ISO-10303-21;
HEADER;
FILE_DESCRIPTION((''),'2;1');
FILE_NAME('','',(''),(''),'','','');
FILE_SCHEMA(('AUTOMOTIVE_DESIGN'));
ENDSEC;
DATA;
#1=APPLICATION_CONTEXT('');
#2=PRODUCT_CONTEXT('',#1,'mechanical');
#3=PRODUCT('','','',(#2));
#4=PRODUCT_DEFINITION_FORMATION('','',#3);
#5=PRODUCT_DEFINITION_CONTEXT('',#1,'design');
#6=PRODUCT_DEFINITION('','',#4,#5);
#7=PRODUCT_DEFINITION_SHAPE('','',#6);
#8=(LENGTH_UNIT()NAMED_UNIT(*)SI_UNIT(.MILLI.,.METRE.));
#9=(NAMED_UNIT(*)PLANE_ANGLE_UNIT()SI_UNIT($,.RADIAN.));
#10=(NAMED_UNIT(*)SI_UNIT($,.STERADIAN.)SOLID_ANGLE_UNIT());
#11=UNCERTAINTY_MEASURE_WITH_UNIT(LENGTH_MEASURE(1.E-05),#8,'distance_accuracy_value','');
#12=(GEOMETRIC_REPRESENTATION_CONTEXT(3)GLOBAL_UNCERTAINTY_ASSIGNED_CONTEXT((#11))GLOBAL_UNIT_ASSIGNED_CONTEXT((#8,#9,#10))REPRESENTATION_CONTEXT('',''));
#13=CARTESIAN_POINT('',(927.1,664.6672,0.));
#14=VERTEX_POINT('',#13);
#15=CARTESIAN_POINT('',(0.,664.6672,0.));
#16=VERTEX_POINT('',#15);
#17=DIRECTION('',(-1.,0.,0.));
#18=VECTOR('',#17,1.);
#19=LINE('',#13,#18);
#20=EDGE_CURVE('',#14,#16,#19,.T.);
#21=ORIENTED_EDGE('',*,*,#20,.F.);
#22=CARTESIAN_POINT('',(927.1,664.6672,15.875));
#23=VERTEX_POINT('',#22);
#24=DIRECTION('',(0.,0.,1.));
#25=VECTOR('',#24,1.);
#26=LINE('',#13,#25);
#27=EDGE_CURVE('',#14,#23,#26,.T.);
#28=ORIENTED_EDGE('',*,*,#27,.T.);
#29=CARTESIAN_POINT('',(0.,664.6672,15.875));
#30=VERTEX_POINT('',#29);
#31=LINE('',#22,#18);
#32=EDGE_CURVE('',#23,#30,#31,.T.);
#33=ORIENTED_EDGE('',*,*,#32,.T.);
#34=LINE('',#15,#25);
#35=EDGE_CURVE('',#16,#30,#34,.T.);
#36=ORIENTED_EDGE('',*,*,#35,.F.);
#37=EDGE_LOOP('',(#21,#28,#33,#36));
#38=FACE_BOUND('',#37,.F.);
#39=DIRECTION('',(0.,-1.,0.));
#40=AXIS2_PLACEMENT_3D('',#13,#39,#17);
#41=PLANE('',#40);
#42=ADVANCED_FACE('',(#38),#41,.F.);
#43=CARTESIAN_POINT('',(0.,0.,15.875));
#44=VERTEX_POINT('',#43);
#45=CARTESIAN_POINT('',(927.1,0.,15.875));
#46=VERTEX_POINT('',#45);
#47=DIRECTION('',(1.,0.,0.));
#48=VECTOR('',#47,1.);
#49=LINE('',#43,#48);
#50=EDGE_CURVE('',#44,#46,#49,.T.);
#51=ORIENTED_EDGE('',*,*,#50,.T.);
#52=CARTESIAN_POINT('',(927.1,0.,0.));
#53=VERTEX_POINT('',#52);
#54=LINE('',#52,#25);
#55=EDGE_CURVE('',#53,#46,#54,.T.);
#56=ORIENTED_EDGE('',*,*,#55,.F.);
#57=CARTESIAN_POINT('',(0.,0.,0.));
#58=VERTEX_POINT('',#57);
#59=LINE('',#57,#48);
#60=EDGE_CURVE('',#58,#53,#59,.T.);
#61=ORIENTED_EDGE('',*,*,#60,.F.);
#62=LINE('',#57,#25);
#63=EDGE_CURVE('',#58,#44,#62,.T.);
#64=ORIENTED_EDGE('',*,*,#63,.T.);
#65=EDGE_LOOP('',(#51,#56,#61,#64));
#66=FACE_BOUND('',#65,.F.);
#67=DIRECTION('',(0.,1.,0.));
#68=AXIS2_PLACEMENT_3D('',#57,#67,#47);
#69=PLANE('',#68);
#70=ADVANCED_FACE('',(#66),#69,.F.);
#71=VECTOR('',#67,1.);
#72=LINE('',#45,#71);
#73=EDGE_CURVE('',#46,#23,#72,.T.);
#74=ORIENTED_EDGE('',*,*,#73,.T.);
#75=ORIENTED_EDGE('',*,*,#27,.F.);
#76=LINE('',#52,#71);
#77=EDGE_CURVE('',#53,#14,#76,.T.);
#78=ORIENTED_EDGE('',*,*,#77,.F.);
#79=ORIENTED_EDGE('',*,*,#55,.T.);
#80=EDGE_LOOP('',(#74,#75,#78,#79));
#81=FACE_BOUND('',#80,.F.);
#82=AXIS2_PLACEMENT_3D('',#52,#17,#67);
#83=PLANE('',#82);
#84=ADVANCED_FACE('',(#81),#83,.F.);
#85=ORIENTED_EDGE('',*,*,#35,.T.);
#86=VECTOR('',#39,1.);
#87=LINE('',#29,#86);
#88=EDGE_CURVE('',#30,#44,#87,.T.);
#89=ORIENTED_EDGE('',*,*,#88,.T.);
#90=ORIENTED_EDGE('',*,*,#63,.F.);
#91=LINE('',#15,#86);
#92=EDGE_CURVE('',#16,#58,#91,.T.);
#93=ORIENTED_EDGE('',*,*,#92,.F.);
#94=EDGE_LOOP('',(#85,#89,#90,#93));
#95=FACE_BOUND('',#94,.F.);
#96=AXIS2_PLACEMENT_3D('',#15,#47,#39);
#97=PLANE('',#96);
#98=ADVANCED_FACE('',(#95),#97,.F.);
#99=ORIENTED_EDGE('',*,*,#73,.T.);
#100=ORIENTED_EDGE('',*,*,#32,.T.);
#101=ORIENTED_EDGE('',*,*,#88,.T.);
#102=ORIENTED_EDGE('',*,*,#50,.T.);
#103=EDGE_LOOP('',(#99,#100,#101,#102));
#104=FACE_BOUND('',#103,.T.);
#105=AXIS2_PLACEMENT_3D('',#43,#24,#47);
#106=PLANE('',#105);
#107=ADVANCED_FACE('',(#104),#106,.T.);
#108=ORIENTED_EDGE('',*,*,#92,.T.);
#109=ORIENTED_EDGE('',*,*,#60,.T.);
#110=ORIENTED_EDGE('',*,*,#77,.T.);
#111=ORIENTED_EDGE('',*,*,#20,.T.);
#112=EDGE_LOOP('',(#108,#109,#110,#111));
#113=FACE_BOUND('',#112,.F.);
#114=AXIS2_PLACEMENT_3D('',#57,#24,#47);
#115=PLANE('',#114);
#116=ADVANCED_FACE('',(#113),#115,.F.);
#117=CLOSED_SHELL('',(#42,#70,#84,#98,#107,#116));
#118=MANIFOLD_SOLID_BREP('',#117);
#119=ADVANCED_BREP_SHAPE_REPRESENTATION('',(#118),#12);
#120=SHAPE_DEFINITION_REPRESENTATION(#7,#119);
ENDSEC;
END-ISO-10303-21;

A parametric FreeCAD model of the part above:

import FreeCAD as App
import Part
import Sketcher

V = App.Vector
Q = App.Units.Quantity

doc = App.newDocument("Part")
params = doc.addObject("Spreadsheet::Sheet", "Params")
for row, (alias, value) in enumerate([
    ("sketch1_width", "36.5 in"),
    ("sketch1_height", "26.168 in"),
    ("pad1_length", "0.625 in"),
], start=1):
    params.set(f"A{row}", alias)
    params.set(f"B{row}", "=" + value)
    params.setAlias(f"B{row}", alias)

body = doc.addObject("PartDesign::Body", "Body")

sketch1 = body.newObject("Sketcher::SketchObject", "Sketch")
sketch1.AttachmentSupport = (doc.getObject("XY_Plane"), [""])
sketch1.MapMode = "FlatFace"
sketch1.addGeometry([
    Part.LineSegment(V(0, 664.6672, 0), V(0, 0, 0)),
    Part.LineSegment(V(0, 0, 0), V(927.1, 0, 0)),
    Part.LineSegment(V(927.1, 0, 0), V(927.1, 664.6672, 0)),
    Part.LineSegment(V(927.1, 664.6672, 0), V(0, 664.6672, 0)),
], False)
sketch1.addConstraint([
    Sketcher.Constraint("Coincident", 0, 2, 1, 1),
    Sketcher.Constraint("Coincident", 1, 2, 2, 1),
    Sketcher.Constraint("Coincident", 2, 2, 3, 1),
    Sketcher.Constraint("Coincident", 3, 2, 0, 1),
    Sketcher.Constraint("Vertical", 0),
    Sketcher.Constraint("Horizontal", 1),
    Sketcher.Constraint("Vertical", 2),
    Sketcher.Constraint("Horizontal", 3),
    Sketcher.Constraint("Coincident", 0, 2, -1, 1),
    Sketcher.Constraint("DistanceX", 1, 1, 1, 2, Q("36.5 in")),
    Sketcher.Constraint("DistanceY", 0, 2, 0, 1, Q("26.168 in")),
])
sketch1.setExpression("Constraints[9]", "Params.sketch1_width")
sketch1.setExpression("Constraints[10]", "Params.sketch1_height")
pad1 = body.newObject("PartDesign::Pad", "Pad")
pad1.Profile = sketch1
pad1.setExpression("Length", "Params.pad1_length")

doc.recompute()
